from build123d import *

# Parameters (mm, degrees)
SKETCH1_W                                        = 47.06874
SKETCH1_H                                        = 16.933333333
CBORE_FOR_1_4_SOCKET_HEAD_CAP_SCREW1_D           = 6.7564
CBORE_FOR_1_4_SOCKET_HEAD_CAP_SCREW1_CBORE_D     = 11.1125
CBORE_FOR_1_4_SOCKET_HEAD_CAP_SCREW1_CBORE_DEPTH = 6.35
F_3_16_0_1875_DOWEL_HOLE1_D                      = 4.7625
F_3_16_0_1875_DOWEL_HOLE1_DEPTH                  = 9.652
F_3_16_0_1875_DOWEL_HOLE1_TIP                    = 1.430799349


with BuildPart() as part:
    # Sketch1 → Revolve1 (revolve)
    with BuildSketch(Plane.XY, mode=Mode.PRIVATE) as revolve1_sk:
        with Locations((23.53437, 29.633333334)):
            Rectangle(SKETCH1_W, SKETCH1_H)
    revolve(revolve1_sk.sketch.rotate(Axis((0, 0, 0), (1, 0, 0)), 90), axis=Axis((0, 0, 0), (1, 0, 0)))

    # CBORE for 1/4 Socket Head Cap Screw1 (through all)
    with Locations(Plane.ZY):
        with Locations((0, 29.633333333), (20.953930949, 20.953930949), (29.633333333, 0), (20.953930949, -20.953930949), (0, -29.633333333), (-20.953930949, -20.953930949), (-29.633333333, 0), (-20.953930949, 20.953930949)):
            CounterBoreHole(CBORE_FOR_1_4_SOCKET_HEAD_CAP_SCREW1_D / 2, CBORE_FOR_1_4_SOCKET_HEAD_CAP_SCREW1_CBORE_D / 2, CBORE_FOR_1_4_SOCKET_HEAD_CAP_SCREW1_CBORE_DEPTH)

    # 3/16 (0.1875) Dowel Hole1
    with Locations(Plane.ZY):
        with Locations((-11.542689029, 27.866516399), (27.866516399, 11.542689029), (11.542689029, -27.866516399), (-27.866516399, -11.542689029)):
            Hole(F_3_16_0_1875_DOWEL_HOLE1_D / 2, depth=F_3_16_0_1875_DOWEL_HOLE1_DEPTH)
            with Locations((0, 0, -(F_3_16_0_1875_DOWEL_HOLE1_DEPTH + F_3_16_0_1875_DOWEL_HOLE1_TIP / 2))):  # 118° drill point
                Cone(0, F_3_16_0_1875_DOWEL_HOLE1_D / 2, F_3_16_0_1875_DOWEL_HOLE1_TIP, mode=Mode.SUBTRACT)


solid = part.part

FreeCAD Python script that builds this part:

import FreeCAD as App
import Part
import Sketcher
from FreeCAD import Vector
Q = App.Units.Quantity


def add_polygon(sketch, points):
    """Adds a closed chain of lines whose ends are joined by coincident constraints."""
    first, n = sketch.GeometryCount, len(points)
    for a, b in zip(points, points[1:] + points[:1]):
        sketch.addGeometry(Part.LineSegment(App.Vector(*a, 0), App.Vector(*b, 0)), False)
    for i in range(n):
        sketch.addConstraint(Sketcher.Constraint("Coincident", first + i, 2, first + (i + 1) % n, 1))

doc = App.newDocument("Part")
body = doc.addObject("PartDesign::Body", "Body")

# Sketch on XY plane
sketch1 = body.newObject("Sketcher::SketchObject", "Sketch")
sketch1.AttachmentSupport = (doc.getObject("XY_Plane"), [""])
sketch1.MapMode = "FlatFace"
add_polygon(sketch1, [(0, 38.1), (0, 21.166667), (47.06874, 21.166667), (47.06874, 38.1)])  # lines 0-3
sketch1.addConstraint([
    Sketcher.Constraint("Vertical", 0),
    Sketcher.Constraint("Horizontal", 1),
    Sketcher.Constraint("Vertical", 2),
    Sketcher.Constraint("Horizontal", 3),
    Sketcher.Constraint("PointOnObject", 0, 2, -2),
    Sketcher.Constraint("DistanceY", -1, 1, 2, 2, Q("1.5 in")),
    Sketcher.Constraint("DistanceX", 1, 1, 1, 2, Q("1.8531 in")),
    Sketcher.Constraint("DistanceY", 0, 2, 0, 1, Q("16.933333 mm")),
])
revolution = body.newObject("PartDesign::Revolution", "Revolution")
revolution.Profile = sketch1
revolution.ReferenceAxis = (sketch1, ["H_Axis"])
revolution.Angle = 360

# Sketch on YZ plane
sketch2 = body.newObject("Sketcher::SketchObject", "Sketch001")
sketch2.AttachmentSupport = (doc.getObject("YZ_Plane"), [""])
sketch2.MapMode = "FlatFace"
sketch2.addGeometry([
    Part.Circle(Vector(29.633333, 0, 0), Vector(0, 0, 1), 3.3782),  # 0
    Part.Circle(Vector(20.953931, 20.953931, 0), Vector(0, 0, 1), 3.3782),  # 1
    Part.Circle(Vector(0, 29.633333, 0), Vector(0, 0, 1), 3.3782),  # 2
    Part.Circle(Vector(-20.953931, 20.953931, 0), Vector(0, 0, 1), 3.3782),  # 3
    Part.Circle(Vector(-29.633333, 0, 0), Vector(0, 0, 1), 3.3782),  # 4
    Part.Circle(Vector(-20.953931, -20.953931, 0), Vector(0, 0, 1), 3.3782),  # 5
    Part.Circle(Vector(0, -29.633333, 0), Vector(0, 0, 1), 3.3782),  # 6
    Part.Circle(Vector(20.953931, -20.953931, 0), Vector(0, 0, 1), 3.3782),  # 7
], False)
sketch2.addConstraint([
    Sketcher.Constraint("Equal", 0, 1),
    Sketcher.Constraint("Equal", 1, 2),
    Sketcher.Constraint("Equal", 2, 3),
    Sketcher.Constraint("Equal", 3, 4),
    Sketcher.Constraint("Equal", 4, 5),
    Sketcher.Constraint("Equal", 5, 6),
    Sketcher.Constraint("Equal", 6, 7),
    Sketcher.Constraint("Symmetric", 0, 3, 4, 3, -1, 1),
    Sketcher.Constraint("Symmetric", 1, 3, 5, 3, -1, 1),
    Sketcher.Constraint("Symmetric", 2, 3, 6, 3, -1, 1),
    Sketcher.Constraint("Symmetric", 3, 3, 7, 3, -1, 1),
    Sketcher.Constraint("Symmetric", 1, 3, 3, 3, -2),
    Sketcher.Constraint("PointOnObject", 0, 3, -1),
    Sketcher.Constraint("PointOnObject", 2, 3, -2),
    Sketcher.Constraint("Diameter", 0, Q("0.266 in")),
    Sketcher.Constraint("DistanceX", -1, 1, 1, 3, Q("20.953931 mm")),
    Sketcher.Constraint("DistanceY", -1, 1, 1, 3, Q("20.953931 mm")),
    Sketcher.Constraint("DistanceX", -1, 1, 0, 3, Q("29.633333 mm")),
    Sketcher.Constraint("DistanceY", -1, 1, 2, 3, Q("29.633333 mm")),
])
doc.recompute()
hole = body.newObject("PartDesign::Hole", "Hole")
hole.Profile = sketch2
hole.ThreadType = "None"
hole.Diameter = Q("0.266 in")
hole.DepthType = "ThroughAll"
hole.HoleCutType = "Counterbore"
hole.HoleCutDiameter = Q("0.4375 in")
hole.HoleCutDepth = Q("0.25 in")
hole.Reversed = True

# Sketch on YZ plane
sketch3 = body.newObject("Sketcher::SketchObject", "Sketch002")
sketch3.AttachmentSupport = (doc.getObject("YZ_Plane"), [""])
sketch3.MapMode = "FlatFace"
sketch3.addGeometry([
    Part.Circle(Vector(27.866516, -11.542689, 0), Vector(0, 0, 1), 2.38125),
    Part.Circle(Vector(11.542689, 27.866516, 0), Vector(0, 0, 1), 2.38125),
    Part.Circle(Vector(-27.866516, 11.542689, 0), Vector(0, 0, 1), 2.38125),
    Part.Circle(Vector(-11.542689, -27.866516, 0), Vector(0, 0, 1), 2.38125),
], False)
sketch3.addConstraint([
    Sketcher.Constraint("Equal", 0, 1),
    Sketcher.Constraint("Equal", 1, 2),
    Sketcher.Constraint("Equal", 2, 3),
    Sketcher.Constraint("Symmetric", 0, 3, 2, 3, -1, 1),
    Sketcher.Constraint("Symmetric", 1, 3, 3, 3, -1, 1),
    Sketcher.Constraint("Diameter", 0, Q("0.1875 in")),
    Sketcher.Constraint("DistanceY", 0, 3, -1, 1, Q("11.542689 mm")),
    Sketcher.Constraint("DistanceX", -1, 1, 1, 3, Q("11.542689 mm")),
    Sketcher.Constraint("DistanceX", -1, 1, 0, 3, Q("27.866516 mm")),
    Sketcher.Constraint("DistanceY", -1, 1, 1, 3, Q("27.866516 mm")),
])
doc.recompute()
hole2 = body.newObject("PartDesign::Hole", "Hole001")
hole2.Profile = sketch3
hole2.ThreadType = "None"
hole2.Diameter = Q("0.1875 in")
hole2.DepthType = "Dimension"
hole2.Depth = Q("0.38 in")
hole2.DrillPoint = "Angled"
hole2.DrillPointAngle = 118
hole2.Reversed = True

doc.recompute()
